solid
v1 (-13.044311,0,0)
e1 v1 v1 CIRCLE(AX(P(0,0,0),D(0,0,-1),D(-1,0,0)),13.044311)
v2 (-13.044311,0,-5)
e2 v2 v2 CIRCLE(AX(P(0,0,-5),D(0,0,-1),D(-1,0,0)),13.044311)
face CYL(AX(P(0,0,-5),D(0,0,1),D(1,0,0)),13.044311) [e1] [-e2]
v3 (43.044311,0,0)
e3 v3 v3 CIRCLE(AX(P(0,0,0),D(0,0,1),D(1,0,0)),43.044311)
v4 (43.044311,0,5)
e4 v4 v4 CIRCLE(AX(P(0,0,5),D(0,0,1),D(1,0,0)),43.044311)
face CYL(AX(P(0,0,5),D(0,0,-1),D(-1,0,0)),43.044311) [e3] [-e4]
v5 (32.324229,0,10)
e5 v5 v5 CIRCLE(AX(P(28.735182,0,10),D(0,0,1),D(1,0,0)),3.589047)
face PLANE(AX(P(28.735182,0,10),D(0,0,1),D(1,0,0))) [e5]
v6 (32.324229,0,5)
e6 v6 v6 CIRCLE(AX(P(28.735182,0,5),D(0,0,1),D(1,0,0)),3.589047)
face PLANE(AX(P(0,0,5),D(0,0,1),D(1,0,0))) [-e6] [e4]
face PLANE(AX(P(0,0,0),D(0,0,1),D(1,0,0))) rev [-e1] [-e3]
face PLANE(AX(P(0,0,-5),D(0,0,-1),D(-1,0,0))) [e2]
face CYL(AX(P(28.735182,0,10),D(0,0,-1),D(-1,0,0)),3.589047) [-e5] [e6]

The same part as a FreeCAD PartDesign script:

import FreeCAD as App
import Part
import Sketcher

doc = App.newDocument("Part")
params = doc.addObject("Spreadsheet::Sheet", "Params")
for row, (alias, value) in enumerate([
    ("pad1_length", "5 mm"),
    ("pad2_length", "5 mm"),
    ("pad3_length", "5 mm"),
], start=1):
    params.set(f"A{row}", alias)
    params.set(f"B{row}", "=" + value)
    params.setAlias(f"B{row}", alias)

body = doc.addObject("PartDesign::Body", "Body")

# Sketch on XY plane
sketch1 = body.newObject("Sketcher::SketchObject", "Sketch")
sketch1.AttachmentSupport = (doc.getObject("XY_Plane"), [""])
sketch1.MapMode = "FlatFace"
sketch1.addGeometry(Part.Circle(App.Vector(0, 0, 0), App.Vector(0, 0, 1), 43), False)
sketch1.addConstraint([
    Sketcher.Constraint("Coincident", 0, 3, -1, 1),
    Sketcher.Constraint("Diameter", 0, 86.088622),
])
pad1 = body.newObject("PartDesign::Pad", "Pad")
pad1.Profile = sketch1
pad1.setExpression("Length", "Params.pad1_length")

# Sketch on XY plane
sketch2 = body.newObject("Sketcher::SketchObject", "Sketch001")
sketch2.AttachmentSupport = (doc.getObject("XY_Plane"), [""])
sketch2.MapMode = "FlatFace"
sketch2.AttachmentOffset = App.Placement(App.Vector(0, 0, 5), App.Rotation())
sketch2.addGeometry(Part.Circle(App.Vector(28.7, 0, 0), App.Vector(0, 0, 1), 3.6), False)
sketch2.addConstraint([
    Sketcher.Constraint("PointOnObject", 0, 3, -1),
    Sketcher.Constraint("Diameter", 0, 7.178094),
    Sketcher.Constraint("DistanceX", -1, 1, 0, 3, 28.735182),
])
pad2 = body.newObject("PartDesign::Pad", "Pad001")
pad2.Profile = sketch2
pad2.setExpression("Length", "Params.pad2_length")

# Sketch on XY plane
sketch3 = body.newObject("Sketcher::SketchObject", "Sketch002")
sketch3.AttachmentSupport = (doc.getObject("XY_Plane"), [""])
sketch3.MapMode = "FlatFace"
sketch3.addGeometry(Part.Circle(App.Vector(0, 0, 0), App.Vector(0, 0, 1), 13), False)
sketch3.addConstraint([
    Sketcher.Constraint("Coincident", 0, 3, -1, 1),
    Sketcher.Constraint("Diameter", 0, 26.088622),
])
pad3 = body.newObject("PartDesign::Pad", "Pad002")
pad3.Profile = sketch3
pad3.setExpression("Length", "Params.pad3_length")
pad3.Reversed = True

doc.recompute()
